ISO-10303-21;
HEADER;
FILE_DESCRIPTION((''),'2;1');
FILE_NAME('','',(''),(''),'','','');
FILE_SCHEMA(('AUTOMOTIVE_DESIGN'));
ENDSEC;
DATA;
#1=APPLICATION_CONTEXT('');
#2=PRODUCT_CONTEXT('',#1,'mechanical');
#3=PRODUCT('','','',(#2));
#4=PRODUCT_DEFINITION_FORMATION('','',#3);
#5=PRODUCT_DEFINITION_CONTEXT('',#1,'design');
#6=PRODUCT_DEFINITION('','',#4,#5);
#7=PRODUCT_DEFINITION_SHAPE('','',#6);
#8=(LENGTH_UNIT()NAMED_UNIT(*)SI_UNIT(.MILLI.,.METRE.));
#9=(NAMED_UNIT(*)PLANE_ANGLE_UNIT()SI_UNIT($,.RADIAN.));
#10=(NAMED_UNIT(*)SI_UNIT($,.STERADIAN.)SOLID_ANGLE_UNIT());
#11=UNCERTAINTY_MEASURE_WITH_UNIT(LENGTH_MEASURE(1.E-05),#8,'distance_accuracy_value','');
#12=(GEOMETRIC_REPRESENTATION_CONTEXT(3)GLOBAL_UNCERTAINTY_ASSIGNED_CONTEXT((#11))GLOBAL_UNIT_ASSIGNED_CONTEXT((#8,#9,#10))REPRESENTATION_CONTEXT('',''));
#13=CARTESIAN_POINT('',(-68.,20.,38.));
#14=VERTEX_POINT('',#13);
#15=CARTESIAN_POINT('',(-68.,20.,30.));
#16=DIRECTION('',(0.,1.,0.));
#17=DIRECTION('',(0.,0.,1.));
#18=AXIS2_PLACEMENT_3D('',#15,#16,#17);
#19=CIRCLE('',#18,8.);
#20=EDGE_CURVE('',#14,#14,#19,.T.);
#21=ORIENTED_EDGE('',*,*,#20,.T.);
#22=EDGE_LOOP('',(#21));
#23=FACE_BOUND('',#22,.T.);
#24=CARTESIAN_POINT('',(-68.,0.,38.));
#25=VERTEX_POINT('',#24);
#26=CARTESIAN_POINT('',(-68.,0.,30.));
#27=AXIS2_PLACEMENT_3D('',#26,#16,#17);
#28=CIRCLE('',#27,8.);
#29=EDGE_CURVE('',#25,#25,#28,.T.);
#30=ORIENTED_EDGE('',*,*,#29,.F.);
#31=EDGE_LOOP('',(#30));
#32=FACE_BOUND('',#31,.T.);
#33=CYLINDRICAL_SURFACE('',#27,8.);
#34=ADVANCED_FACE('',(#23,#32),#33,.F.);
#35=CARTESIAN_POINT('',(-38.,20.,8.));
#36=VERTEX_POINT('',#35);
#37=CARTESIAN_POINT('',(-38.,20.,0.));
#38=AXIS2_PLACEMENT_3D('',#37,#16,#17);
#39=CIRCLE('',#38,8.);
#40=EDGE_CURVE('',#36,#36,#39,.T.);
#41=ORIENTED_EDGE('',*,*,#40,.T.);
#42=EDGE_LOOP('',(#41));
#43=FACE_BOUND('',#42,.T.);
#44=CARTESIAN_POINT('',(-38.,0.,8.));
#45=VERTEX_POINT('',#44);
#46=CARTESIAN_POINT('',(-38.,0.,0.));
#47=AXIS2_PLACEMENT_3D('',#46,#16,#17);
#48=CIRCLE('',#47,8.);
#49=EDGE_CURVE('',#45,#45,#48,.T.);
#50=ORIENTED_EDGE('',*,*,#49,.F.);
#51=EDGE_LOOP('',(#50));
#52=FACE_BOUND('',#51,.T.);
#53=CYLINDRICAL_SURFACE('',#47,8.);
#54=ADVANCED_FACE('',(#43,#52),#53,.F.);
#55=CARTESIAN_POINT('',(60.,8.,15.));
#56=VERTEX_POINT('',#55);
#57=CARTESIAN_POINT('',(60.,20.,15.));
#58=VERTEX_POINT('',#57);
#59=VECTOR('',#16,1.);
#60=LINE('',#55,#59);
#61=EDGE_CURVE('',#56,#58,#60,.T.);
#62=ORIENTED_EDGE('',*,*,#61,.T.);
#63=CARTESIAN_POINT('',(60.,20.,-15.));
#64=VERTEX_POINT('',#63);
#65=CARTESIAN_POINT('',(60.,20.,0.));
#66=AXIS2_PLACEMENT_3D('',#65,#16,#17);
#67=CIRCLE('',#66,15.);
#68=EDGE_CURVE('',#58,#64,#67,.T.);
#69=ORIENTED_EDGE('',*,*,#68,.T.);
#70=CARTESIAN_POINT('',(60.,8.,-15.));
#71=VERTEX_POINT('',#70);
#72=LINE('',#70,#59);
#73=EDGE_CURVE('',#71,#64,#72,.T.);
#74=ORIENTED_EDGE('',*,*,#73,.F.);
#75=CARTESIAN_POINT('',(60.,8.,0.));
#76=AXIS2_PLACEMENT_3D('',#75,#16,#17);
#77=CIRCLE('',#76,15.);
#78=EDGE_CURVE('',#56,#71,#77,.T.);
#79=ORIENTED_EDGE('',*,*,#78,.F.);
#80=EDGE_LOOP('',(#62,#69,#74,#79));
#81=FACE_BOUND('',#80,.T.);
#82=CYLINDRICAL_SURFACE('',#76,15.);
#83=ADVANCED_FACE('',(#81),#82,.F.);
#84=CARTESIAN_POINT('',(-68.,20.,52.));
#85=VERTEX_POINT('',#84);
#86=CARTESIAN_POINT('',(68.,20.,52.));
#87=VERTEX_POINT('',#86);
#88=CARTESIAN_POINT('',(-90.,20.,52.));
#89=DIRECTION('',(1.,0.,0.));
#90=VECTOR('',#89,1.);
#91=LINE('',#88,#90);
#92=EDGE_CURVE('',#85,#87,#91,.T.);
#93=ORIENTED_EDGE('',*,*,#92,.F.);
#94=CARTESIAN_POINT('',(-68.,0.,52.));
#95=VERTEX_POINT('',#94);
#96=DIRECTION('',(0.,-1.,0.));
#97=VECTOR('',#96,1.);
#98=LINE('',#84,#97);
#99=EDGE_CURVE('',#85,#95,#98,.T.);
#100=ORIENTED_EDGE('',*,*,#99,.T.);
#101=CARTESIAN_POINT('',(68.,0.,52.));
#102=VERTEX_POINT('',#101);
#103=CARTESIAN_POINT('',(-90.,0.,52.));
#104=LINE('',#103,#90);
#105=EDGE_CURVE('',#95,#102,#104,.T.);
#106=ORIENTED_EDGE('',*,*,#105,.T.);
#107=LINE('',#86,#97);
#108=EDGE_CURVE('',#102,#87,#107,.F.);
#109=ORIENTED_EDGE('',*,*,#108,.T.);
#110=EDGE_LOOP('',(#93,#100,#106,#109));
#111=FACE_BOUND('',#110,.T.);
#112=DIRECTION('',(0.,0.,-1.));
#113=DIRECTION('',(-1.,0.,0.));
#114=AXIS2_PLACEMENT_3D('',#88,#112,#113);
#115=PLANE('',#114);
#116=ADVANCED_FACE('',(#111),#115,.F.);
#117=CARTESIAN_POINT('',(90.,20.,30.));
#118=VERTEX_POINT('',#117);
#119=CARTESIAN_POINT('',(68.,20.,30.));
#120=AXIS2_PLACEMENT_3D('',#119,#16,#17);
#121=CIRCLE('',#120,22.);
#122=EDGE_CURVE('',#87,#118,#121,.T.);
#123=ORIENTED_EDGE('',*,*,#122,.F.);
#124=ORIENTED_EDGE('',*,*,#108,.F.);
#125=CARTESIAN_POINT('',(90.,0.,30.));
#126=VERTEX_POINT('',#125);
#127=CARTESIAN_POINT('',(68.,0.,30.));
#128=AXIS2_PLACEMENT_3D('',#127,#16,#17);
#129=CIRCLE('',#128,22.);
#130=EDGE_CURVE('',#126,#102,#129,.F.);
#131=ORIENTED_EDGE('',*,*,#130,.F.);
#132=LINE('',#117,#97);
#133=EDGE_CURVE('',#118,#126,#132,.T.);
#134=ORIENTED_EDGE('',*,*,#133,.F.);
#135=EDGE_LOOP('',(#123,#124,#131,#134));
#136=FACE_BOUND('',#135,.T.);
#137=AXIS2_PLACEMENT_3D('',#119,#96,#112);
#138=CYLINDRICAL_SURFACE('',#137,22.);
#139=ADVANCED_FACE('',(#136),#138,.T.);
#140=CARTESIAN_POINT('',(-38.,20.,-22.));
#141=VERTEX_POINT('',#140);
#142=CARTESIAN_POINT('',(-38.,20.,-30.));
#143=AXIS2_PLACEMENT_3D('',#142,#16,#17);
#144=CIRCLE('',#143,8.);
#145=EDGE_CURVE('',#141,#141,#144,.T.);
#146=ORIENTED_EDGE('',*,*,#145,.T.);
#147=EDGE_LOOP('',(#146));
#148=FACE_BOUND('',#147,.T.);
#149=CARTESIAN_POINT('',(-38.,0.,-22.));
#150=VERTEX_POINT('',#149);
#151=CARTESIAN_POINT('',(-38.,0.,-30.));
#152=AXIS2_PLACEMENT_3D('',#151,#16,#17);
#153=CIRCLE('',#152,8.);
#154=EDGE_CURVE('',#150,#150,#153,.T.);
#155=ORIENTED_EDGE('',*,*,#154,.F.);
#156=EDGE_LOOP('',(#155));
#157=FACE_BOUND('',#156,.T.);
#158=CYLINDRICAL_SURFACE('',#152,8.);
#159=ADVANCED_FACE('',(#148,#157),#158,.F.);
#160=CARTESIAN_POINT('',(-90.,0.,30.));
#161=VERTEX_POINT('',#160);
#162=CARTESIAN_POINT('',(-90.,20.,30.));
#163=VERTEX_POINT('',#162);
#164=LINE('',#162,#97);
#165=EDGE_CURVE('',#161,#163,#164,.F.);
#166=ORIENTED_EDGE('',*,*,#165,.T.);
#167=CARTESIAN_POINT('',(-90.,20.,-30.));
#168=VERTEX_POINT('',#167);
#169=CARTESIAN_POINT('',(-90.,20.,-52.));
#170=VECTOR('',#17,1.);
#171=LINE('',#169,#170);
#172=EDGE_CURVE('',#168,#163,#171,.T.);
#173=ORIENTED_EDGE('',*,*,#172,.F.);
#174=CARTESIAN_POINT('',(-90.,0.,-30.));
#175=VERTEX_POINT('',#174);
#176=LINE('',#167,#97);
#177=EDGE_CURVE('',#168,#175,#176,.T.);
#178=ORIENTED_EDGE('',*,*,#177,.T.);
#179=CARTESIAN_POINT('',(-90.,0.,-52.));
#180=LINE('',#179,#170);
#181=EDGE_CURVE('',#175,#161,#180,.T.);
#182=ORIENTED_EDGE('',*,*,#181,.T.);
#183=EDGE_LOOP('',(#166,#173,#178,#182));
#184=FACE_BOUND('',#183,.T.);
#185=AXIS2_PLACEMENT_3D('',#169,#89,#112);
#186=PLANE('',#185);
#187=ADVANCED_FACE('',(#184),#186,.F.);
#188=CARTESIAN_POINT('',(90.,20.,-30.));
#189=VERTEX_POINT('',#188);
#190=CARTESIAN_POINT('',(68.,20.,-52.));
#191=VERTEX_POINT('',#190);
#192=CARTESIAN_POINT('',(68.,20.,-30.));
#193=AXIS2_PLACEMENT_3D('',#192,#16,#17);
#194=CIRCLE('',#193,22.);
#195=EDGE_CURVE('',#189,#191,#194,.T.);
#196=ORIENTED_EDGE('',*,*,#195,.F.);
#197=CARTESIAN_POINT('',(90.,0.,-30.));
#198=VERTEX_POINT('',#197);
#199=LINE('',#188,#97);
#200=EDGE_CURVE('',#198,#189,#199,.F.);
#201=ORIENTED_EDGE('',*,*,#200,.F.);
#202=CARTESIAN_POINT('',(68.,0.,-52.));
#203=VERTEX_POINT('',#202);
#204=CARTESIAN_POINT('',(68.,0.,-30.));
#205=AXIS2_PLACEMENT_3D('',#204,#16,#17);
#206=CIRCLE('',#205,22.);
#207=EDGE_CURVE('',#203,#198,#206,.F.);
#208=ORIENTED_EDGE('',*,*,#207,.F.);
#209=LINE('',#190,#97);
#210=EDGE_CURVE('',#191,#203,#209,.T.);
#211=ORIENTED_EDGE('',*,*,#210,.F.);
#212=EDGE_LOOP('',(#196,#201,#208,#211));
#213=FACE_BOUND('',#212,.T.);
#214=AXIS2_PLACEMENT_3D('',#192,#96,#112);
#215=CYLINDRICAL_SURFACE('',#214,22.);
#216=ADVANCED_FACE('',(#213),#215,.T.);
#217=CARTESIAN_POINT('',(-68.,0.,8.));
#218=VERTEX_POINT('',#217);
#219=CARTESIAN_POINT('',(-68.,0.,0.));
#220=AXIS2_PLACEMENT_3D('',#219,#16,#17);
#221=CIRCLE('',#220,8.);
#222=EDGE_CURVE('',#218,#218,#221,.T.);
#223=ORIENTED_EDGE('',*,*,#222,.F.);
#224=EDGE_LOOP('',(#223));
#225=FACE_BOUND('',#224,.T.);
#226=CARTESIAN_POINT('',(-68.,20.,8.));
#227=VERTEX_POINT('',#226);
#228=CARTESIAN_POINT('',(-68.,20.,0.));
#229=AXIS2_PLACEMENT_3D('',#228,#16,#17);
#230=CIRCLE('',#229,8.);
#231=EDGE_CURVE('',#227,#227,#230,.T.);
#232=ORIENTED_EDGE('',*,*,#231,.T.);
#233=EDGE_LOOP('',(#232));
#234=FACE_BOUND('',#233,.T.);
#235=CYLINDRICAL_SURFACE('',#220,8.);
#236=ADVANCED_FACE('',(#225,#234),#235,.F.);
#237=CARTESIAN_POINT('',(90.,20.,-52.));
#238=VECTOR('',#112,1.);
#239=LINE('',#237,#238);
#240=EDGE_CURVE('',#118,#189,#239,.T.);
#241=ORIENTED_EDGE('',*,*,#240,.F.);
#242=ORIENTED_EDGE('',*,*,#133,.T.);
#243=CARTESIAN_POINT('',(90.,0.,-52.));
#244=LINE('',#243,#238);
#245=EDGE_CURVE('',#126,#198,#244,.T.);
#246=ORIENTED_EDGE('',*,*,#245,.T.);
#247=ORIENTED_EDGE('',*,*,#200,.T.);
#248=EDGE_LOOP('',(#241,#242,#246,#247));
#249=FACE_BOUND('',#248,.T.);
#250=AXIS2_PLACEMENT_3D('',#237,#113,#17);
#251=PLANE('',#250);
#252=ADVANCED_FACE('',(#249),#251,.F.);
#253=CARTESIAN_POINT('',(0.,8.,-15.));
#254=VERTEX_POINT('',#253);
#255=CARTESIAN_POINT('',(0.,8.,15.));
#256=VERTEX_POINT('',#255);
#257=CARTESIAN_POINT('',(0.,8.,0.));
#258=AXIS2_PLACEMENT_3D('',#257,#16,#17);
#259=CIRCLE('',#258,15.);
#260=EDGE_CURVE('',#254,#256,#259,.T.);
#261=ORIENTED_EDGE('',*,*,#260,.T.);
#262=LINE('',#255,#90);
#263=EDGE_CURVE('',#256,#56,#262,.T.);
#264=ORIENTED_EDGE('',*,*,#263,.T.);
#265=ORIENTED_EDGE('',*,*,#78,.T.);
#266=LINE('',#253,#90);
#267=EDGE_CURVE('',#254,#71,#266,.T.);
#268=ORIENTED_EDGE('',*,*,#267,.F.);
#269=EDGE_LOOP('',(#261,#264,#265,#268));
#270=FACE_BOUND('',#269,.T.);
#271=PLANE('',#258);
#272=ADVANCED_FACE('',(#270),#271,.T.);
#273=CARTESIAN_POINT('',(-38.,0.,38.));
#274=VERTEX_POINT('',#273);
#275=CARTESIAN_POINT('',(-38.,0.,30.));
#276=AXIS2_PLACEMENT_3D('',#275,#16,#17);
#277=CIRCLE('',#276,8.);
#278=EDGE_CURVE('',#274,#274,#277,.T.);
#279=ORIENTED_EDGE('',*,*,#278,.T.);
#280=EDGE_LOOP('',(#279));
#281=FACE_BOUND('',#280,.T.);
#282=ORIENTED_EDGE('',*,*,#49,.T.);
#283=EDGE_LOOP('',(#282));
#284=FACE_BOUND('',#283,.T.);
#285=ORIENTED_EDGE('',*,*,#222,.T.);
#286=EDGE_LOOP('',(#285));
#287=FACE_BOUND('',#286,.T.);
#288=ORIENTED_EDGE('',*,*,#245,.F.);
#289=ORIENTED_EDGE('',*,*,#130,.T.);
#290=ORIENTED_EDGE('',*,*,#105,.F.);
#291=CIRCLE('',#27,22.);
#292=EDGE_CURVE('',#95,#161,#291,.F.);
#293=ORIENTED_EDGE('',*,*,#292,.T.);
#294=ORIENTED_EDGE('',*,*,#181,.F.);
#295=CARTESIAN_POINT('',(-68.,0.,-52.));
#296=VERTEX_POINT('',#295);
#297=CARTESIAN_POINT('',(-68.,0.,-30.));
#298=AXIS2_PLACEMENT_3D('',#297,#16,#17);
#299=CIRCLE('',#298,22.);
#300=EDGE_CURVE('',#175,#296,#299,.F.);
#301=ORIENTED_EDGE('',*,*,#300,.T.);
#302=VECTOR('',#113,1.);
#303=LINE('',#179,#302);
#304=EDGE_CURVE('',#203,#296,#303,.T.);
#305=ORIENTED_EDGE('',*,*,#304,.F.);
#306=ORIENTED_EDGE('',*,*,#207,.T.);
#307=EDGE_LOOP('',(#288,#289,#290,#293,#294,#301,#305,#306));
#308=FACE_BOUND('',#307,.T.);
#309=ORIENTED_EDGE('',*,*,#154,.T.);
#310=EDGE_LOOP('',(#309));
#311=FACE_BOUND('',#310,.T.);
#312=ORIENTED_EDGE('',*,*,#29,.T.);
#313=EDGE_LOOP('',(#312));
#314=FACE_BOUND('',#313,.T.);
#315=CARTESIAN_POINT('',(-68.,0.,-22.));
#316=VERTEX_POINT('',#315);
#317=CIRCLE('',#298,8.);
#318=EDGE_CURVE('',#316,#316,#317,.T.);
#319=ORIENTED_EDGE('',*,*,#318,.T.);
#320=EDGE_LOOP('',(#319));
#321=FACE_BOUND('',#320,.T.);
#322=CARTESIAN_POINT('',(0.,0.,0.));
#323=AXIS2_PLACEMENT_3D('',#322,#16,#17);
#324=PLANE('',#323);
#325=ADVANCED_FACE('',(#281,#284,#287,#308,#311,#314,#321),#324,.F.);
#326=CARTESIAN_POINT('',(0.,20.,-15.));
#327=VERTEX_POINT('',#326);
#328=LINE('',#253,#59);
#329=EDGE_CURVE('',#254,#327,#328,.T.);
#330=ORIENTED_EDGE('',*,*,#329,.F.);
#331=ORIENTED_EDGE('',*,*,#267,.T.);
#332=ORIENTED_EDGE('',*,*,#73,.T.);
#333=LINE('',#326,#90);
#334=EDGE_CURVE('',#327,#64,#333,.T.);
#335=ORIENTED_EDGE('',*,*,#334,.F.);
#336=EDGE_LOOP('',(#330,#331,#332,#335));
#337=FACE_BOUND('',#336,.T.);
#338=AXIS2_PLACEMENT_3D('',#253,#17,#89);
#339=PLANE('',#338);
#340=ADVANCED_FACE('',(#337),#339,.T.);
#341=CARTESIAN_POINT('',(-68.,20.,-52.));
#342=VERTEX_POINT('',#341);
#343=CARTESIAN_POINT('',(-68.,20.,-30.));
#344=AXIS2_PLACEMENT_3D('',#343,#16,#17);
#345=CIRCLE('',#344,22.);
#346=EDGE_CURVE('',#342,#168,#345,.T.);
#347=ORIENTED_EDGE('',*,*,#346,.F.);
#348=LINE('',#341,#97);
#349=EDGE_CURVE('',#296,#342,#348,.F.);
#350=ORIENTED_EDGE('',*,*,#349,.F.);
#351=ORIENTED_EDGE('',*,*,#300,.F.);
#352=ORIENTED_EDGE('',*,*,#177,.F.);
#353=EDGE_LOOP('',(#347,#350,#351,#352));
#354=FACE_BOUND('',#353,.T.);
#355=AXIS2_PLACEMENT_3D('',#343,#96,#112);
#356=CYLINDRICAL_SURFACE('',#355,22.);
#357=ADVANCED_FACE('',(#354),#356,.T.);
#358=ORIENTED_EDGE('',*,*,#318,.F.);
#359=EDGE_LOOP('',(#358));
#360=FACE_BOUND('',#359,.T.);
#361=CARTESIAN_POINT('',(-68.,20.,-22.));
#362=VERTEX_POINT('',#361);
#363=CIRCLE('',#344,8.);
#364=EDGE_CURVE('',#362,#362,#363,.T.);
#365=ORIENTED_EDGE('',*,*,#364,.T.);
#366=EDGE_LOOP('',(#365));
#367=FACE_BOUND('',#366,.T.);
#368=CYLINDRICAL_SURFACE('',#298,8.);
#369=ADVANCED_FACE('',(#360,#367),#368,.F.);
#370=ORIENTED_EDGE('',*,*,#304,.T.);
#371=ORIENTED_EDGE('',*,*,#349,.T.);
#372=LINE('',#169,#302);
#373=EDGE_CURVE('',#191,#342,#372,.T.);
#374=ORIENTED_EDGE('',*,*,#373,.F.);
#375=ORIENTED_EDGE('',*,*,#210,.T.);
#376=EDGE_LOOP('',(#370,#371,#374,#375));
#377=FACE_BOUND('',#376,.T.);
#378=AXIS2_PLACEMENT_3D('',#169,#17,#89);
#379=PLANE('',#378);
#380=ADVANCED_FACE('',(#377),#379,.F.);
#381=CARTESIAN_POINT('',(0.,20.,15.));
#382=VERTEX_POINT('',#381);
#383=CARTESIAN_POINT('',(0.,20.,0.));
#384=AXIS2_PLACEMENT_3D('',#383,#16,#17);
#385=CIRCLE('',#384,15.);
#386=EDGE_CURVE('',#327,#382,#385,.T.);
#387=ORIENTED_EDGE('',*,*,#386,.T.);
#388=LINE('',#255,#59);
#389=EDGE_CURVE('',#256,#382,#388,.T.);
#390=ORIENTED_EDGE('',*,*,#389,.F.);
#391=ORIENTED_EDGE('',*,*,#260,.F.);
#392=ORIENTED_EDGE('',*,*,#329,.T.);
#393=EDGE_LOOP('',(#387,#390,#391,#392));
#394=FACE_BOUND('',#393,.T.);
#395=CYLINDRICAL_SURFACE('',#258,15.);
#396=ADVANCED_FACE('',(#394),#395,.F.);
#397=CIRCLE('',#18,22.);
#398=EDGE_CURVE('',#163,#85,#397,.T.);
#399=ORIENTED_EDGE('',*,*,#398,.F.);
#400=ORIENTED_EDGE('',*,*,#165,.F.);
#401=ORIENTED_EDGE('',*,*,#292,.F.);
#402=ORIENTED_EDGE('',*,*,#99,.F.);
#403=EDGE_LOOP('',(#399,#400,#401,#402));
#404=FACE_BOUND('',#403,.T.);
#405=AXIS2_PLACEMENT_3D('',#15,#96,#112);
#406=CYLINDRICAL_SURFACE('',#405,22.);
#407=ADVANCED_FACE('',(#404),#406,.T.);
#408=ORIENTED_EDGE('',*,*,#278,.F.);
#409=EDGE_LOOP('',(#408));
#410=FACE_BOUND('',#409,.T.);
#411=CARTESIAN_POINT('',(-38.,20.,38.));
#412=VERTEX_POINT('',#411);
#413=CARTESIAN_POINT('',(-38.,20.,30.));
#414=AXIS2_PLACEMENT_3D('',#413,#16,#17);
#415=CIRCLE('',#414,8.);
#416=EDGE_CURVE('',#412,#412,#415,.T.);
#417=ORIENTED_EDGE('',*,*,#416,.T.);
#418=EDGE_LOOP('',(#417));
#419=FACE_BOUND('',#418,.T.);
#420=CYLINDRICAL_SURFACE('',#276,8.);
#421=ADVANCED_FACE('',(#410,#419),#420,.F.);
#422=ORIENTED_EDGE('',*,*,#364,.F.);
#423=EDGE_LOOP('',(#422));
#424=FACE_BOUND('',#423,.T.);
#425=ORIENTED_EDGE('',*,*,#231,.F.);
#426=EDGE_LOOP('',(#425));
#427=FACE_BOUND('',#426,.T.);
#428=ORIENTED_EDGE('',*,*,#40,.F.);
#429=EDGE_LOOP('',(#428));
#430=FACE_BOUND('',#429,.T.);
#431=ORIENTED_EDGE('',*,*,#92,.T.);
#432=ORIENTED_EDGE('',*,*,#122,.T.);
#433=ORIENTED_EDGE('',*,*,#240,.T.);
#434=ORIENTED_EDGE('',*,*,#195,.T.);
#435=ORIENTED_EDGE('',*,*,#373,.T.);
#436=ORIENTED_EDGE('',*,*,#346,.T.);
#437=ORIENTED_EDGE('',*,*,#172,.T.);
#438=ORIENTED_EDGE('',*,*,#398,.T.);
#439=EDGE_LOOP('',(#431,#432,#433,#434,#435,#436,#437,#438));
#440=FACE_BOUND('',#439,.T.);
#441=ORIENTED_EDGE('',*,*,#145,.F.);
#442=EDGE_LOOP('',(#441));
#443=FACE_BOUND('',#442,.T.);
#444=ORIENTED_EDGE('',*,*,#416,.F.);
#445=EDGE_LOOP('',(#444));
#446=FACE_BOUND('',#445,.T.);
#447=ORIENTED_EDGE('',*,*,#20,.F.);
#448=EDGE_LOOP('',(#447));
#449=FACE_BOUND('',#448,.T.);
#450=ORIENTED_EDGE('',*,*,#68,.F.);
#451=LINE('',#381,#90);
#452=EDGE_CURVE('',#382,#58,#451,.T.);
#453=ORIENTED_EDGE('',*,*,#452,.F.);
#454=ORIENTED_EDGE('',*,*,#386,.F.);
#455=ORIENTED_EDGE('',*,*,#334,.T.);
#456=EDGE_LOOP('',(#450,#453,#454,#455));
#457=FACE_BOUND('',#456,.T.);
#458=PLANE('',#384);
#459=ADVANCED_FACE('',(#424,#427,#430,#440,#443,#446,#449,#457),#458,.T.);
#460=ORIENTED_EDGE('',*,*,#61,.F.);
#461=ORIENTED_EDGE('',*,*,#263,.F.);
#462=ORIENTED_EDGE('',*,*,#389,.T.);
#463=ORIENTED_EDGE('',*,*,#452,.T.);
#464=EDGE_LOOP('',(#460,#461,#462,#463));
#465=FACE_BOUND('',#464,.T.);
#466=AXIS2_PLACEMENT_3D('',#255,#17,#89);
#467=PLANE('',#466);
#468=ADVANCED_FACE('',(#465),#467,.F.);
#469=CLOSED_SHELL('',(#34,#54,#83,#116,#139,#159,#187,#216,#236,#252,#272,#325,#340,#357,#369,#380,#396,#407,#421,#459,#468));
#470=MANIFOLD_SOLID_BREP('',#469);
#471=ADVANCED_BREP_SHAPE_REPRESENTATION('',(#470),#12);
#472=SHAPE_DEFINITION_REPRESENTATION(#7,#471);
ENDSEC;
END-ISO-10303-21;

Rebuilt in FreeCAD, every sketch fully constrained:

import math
import FreeCAD as App
import Part
import Sketcher

V = App.Vector


def edges_at(feature, points):
    """Names of the edges that pass closest to the given points."""
    edges = feature.Shape.Edges
    near = lambda p: min(range(len(edges)), key=lambda i: edges[i].distToShape(Part.Vertex(*p))[0])
    return sorted({f"Edge{near(p) + 1}" for p in points})

doc = App.newDocument("Part")
body = doc.addObject("PartDesign::Body", "Body")

sketch1 = doc.addObject("Sketcher::SketchObject", "Sketch")
body.addObject(sketch1)
sketch1.AttachmentSupport = (doc.XZ_Plane, [""])
sketch1.MapMode = "FlatFace"
sketch1.addGeometry([
    Part.LineSegment(V(-90, -52, 0), V(-90, 52, 0)),
    Part.LineSegment(V(-90, 52, 0), V(90, 52, 0)),
    Part.LineSegment(V(90, 52, 0), V(90, -52, 0)),
    Part.LineSegment(V(90, -52, 0), V(-90, -52, 0)),
], False)
sketch1.addConstraint([
    Sketcher.Constraint("Coincident", 0, 2, 1, 1),
    Sketcher.Constraint("Coincident", 1, 2, 2, 1),
    Sketcher.Constraint("Coincident", 2, 2, 3, 1),
    Sketcher.Constraint("Coincident", 3, 2, 0, 1),
    Sketcher.Constraint("Vertical", 0),
    Sketcher.Constraint("Horizontal", 1),
    Sketcher.Constraint("Vertical", 2),
    Sketcher.Constraint("Horizontal", 3),
    Sketcher.Constraint("Symmetric", 0, 2, 2, 2, -1, 1),
    Sketcher.Constraint("DistanceX", 1, 1, 1, 2, 180.0),
    Sketcher.Constraint("DistanceY", 0, 1, 0, 2, 104.0),
])
pad1 = doc.addObject("PartDesign::Pad", "Pad")
body.addObject(pad1)
pad1.Profile = sketch1
pad1.Length = 20
pad1.Reversed = True
doc.recompute()

fillet = doc.addObject("PartDesign::Fillet", "Fillet")
body.addObject(fillet)
fillet.Base = (pad1, edges_at(pad1, [
    (90, 10, 52),
    (-90, 10, 52),
    (-90, 10, -52),
    (90, 10, -52),
]))
fillet.Radius = 22

sketch2 = doc.addObject("Sketcher::SketchObject", "Sketch001")
body.addObject(sketch2)
sketch2.AttachmentSupport = (doc.XZ_Plane, [""])
sketch2.MapMode = "FlatFace"
sketch2.AttachmentOffset = App.Placement(V(0, 0, -20), App.Rotation())
sketch2.addGeometry([
    Part.Circle(V(-68, -30, 0), V(0, 0, 1), 8),
    Part.Circle(V(-68, 0, 0), V(0, 0, 1), 8),
    Part.Circle(V(-68, 30, 0), V(0, 0, 1), 8),
    Part.Circle(V(-38, 30, 0), V(0, 0, 1), 8),
    Part.Circle(V(-38, 0, 0), V(0, 0, 1), 8),
    Part.Circle(V(-38, -30, 0), V(0, 0, 1), 8),
], False)
sketch2.addConstraint([
    Sketcher.Constraint("Equal", 0, 1),
    Sketcher.Constraint("Equal", 1, 2),
    Sketcher.Constraint("Equal", 2, 3),
    Sketcher.Constraint("Equal", 3, 4),
    Sketcher.Constraint("Equal", 4, 5),
    Sketcher.Constraint("Symmetric", 0, 3, 2, 3, -1),
    Sketcher.Constraint("Symmetric", 3, 3, 5, 3, -1),
    Sketcher.Constraint("PointOnObject", 1, 3, -1),
    Sketcher.Constraint("PointOnObject", 4, 3, -1),
    Sketcher.Constraint("Horizontal", 2, 3, 3, 3),
    Sketcher.Constraint("Vertical", 0, 3, 1, 3),
    Sketcher.Constraint("Vertical", 3, 3, 4, 3),
    Sketcher.Constraint("Diameter", 0, 16.0),
    Sketcher.Constraint("DistanceX", 0, 3, -1, 1, 68.0),
    Sketcher.Constraint("DistanceY", 0, 3, -1, 1, 30.0),
    Sketcher.Constraint("DistanceX", 3, 3, -1, 1, 38.0),
])
pocket1 = doc.addObject("PartDesign::Pocket", "Pocket")
body.addObject(pocket1)
pocket1.Profile = sketch2
pocket1.Length = 20
pocket1.Reversed = True

sketch3 = doc.addObject("Sketcher::SketchObject", "Sketch002")
body.addObject(sketch3)
sketch3.AttachmentSupport = (doc.XZ_Plane, [""])
sketch3.MapMode = "FlatFace"
sketch3.AttachmentOffset = App.Placement(V(0, 0, -20), App.Rotation())
sketch3.addGeometry([
    Part.LineSegment(V(60, -15, 0), V(0, -15, 0)),
    Part.ArcOfCircle(Part.Circle(V(0, 0, 0), V(0, 0, 1), 15), math.radians(90), math.radians(270)),
    Part.LineSegment(V(0, 15, 0), V(60, 15, 0)),
    Part.ArcOfCircle(Part.Circle(V(60, 0, 0), V(0, 0, 1), 15), math.radians(-90), math.radians(90)),
], False)
sketch3.addConstraint([
    Sketcher.Constraint("Tangent", 0, 2, 1, 2),
    Sketcher.Constraint("Tangent", 1, 1, 2, 1),
    Sketcher.Constraint("Tangent", 2, 2, 3, 2),
    Sketcher.Constraint("Tangent", 3, 1, 0, 1),
    Sketcher.Constraint("Horizontal", 0),
    Sketcher.Constraint("Horizontal", 2),
    Sketcher.Constraint("Coincident", 1, 3, -1, 1),
    Sketcher.Constraint("Radius", 1, 15.0),
    Sketcher.Constraint("DistanceX", 0, 2, 0, 1, 60.0),
])
pocket2 = doc.addObject("PartDesign::Pocket", "Pocket001")
body.addObject(pocket2)
pocket2.Profile = sketch3
pocket2.Length = 12
pocket2.Reversed = True

doc.recompute()
